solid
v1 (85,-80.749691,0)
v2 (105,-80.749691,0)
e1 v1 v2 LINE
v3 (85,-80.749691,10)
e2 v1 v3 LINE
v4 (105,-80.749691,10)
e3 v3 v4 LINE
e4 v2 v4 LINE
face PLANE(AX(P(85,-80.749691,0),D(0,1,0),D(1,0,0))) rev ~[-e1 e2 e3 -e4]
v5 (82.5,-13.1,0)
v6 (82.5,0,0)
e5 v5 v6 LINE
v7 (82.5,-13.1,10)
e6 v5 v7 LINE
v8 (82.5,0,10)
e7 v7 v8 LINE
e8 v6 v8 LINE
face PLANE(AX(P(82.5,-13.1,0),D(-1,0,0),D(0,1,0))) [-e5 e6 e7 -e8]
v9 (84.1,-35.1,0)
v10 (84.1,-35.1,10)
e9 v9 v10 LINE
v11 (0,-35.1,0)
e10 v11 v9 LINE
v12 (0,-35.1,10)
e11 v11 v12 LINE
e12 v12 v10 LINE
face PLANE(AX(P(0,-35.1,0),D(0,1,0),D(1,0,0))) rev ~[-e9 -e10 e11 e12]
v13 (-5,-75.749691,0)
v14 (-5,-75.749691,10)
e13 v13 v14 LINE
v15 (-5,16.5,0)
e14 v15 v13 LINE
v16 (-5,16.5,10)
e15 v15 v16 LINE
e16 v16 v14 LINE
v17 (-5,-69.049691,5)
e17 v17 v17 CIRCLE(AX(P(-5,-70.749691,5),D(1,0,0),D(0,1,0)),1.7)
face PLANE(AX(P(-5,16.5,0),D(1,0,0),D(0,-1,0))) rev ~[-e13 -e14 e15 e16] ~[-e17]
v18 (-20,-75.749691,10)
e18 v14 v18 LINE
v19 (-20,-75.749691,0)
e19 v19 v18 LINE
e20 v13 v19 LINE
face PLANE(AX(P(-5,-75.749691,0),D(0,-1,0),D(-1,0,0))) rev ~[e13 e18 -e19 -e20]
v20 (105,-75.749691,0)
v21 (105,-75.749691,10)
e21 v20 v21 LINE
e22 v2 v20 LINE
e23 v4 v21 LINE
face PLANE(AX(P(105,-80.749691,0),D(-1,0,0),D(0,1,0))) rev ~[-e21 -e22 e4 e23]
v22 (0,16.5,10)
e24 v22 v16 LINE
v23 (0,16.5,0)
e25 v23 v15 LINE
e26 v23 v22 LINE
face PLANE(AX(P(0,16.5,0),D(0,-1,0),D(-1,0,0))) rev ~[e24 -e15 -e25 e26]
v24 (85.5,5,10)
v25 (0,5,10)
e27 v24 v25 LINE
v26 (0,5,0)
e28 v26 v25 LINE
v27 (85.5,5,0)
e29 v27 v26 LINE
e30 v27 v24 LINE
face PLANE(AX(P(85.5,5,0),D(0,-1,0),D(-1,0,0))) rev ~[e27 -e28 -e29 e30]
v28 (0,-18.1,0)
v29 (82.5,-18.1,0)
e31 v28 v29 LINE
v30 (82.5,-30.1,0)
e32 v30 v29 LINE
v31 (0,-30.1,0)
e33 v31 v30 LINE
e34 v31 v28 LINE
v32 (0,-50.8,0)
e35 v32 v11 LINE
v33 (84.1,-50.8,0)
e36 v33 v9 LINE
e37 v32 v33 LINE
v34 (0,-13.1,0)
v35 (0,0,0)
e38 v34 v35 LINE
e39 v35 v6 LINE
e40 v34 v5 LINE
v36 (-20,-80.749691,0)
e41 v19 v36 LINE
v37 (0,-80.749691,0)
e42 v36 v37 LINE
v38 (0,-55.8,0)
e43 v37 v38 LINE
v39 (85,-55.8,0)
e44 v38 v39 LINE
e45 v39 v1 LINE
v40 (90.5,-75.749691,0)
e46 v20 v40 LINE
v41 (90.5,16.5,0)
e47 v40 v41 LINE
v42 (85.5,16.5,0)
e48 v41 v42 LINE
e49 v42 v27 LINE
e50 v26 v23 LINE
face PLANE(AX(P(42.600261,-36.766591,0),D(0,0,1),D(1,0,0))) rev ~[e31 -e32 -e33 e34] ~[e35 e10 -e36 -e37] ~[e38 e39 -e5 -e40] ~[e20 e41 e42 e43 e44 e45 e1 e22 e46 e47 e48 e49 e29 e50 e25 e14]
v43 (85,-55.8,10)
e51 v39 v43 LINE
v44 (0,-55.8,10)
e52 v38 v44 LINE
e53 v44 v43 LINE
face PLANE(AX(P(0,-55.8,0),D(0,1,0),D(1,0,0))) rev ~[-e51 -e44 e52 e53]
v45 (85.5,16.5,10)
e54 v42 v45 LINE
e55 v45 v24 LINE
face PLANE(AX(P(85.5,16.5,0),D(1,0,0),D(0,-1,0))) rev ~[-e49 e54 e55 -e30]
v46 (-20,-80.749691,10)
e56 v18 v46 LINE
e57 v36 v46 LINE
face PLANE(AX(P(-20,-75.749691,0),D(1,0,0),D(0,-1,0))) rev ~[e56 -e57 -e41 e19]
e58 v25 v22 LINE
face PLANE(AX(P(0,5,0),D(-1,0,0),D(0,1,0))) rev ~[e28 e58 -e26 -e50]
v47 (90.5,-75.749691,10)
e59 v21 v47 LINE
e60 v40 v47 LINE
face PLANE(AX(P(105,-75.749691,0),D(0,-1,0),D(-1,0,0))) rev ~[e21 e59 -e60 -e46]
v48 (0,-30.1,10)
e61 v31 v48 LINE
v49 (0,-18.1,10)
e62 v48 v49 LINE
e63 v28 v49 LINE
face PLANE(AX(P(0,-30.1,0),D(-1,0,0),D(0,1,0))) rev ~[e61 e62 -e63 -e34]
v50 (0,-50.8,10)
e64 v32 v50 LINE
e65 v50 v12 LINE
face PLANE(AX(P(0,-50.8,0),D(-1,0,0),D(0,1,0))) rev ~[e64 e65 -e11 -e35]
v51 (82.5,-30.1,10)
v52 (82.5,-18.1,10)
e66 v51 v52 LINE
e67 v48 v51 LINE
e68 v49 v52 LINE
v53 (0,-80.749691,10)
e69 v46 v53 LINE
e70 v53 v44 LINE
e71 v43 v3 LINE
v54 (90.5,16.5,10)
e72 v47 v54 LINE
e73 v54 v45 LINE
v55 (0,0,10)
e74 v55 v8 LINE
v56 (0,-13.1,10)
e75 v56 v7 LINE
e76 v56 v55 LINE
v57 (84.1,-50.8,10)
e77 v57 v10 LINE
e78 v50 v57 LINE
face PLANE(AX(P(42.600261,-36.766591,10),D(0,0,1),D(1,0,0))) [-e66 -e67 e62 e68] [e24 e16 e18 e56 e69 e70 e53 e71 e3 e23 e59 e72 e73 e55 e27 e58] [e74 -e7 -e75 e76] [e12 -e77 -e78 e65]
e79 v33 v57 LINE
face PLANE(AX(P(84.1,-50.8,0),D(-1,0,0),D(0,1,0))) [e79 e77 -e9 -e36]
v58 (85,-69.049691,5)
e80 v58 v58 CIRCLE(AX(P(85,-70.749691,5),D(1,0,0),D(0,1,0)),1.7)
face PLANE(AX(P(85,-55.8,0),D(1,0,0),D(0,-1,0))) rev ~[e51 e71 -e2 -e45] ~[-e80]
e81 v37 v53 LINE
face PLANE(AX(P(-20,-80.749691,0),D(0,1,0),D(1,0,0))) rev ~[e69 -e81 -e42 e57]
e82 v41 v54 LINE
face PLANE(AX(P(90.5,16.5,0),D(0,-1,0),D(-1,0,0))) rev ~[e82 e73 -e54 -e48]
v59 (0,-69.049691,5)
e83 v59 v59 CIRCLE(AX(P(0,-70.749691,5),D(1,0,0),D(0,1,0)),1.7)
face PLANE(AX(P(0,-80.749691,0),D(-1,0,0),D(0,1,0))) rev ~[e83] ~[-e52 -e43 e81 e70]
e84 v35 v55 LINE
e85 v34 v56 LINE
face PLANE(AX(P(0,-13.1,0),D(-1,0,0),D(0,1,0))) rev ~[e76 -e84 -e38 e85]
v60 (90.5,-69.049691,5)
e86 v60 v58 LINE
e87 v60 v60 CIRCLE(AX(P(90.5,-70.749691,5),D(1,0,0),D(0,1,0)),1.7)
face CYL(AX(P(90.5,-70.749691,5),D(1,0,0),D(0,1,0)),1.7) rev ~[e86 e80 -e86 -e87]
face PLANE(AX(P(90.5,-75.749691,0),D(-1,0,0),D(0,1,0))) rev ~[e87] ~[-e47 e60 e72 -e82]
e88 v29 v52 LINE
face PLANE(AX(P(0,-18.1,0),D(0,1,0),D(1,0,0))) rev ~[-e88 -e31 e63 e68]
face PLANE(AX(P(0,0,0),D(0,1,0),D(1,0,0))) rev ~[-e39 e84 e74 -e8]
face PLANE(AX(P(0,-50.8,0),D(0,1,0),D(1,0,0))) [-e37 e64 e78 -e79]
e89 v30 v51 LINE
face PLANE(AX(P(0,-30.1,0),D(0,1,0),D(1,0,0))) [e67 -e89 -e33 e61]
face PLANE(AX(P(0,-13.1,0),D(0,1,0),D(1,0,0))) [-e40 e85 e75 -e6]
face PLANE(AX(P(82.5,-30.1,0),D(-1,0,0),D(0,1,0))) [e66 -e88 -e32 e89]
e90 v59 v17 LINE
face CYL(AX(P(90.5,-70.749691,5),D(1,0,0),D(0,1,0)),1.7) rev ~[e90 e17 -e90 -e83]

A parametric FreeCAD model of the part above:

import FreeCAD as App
import Part
import Sketcher


def add_polygon(sketch, points):
    """Adds a closed chain of lines whose ends are joined by coincident constraints."""
    first, n = sketch.GeometryCount, len(points)
    for a, b in zip(points, points[1:] + points[:1]):
        sketch.addGeometry(Part.LineSegment(App.Vector(*a, 0), App.Vector(*b, 0)), False)
    for i in range(n):
        sketch.addConstraint(Sketcher.Constraint("Coincident", first + i, 2, first + (i + 1) % n, 1))

doc = App.newDocument("Part")
params = doc.addObject("Spreadsheet::Sheet", "Params")
for row, (alias, value) in enumerate([
    ("sketch1_width", "5 mm"),
    ("sketch1_width2", "15 mm"),
    ("sketch1_width3", "85 mm"),
    ("sketch1_height", "12 mm"),
    ("sketch1_width4", "85.5 mm"),
    ("pad1_length", "10 mm"),
    ("sketch2_diameter", "3.4 mm"),
], start=1):
    params.set(f"A{row}", alias)
    params.set(f"B{row}", "=" + value)
    params.setAlias(f"B{row}", alias)

body = doc.addObject("PartDesign::Body", "Body")

# Sketch on XY plane
sketch1 = body.newObject("Sketcher::SketchObject", "Sketch")
sketch1.AttachmentSupport = (doc.getObject("XY_Plane"), [""])
sketch1.MapMode = "FlatFace"
add_polygon(sketch1, [(86, 5), (0, 5), (0, 16), (-5, 16), (-5, -76), (-20, -76), (-20, -81), (0, -81), (0, -56), (85, -56), (85, -81), (105, -81), (105, -76), (90, -76), (90, 16), (86, 16)])  # lines 0-15
add_polygon(sketch1, [(84, -51), (0, -51), (0, -35), (84, -35)])  # lines 16-19
add_polygon(sketch1, [(82, -30), (0, -30), (0, -18), (82, -18)])  # lines 20-23
add_polygon(sketch1, [(82, -13), (0, -13), (0, 0), (82, 0)])  # lines 24-27
sketch1.addConstraint([
    Sketcher.Constraint("Horizontal", 0),
    Sketcher.Constraint("Vertical", 1),
    Sketcher.Constraint("Horizontal", 2),
    Sketcher.Constraint("Vertical", 3),
    Sketcher.Constraint("Horizontal", 4),
    Sketcher.Constraint("Vertical", 5),
    Sketcher.Constraint("Horizontal", 6),
    Sketcher.Constraint("Vertical", 7),
    Sketcher.Constraint("Horizontal", 8),
    Sketcher.Constraint("Vertical", 9),
    Sketcher.Constraint("Horizontal", 10),
    Sketcher.Constraint("Vertical", 11),
    Sketcher.Constraint("Horizontal", 12),
    Sketcher.Constraint("Vertical", 13),
    Sketcher.Constraint("Horizontal", 14),
    Sketcher.Constraint("Vertical", 15),
    Sketcher.Constraint("Horizontal", 16),
    Sketcher.Constraint("Vertical", 17),
    Sketcher.Constraint("Horizontal", 18),
    Sketcher.Constraint("Vertical", 19),
    Sketcher.Constraint("Horizontal", 20),
    Sketcher.Constraint("Vertical", 21),
    Sketcher.Constraint("Horizontal", 22),
    Sketcher.Constraint("Vertical", 23),
    Sketcher.Constraint("Horizontal", 24),
    Sketcher.Constraint("Vertical", 25),
    Sketcher.Constraint("Horizontal", 26),
    Sketcher.Constraint("Vertical", 27),
    Sketcher.Constraint("Coincident", 25, 2, -1, 1),
    Sketcher.Constraint("PointOnObject", 0, 2, -2),
    Sketcher.Constraint("PointOnObject", 6, 2, -2),
    Sketcher.Constraint("PointOnObject", 16, 2, -2),
    Sketcher.Constraint("PointOnObject", 20, 2, -2),
    Sketcher.Constraint("Horizontal", 6, 2, 9, 2),
    Sketcher.Constraint("Horizontal", 4, 2, 11, 2),
    Sketcher.Constraint("Horizontal", 2, 2, 13, 2),
    Sketcher.Constraint("Vertical", 23, 2, 26, 2),
    Sketcher.Constraint("Equal", 6, 10),
    Sketcher.Constraint("Equal", 2, 14),
    Sketcher.Constraint("Equal", 14, 5),
    Sketcher.Constraint("DistanceX", 2, 2, 2, 1, 5.0),
    Sketcher.Constraint("DistanceX", 4, 2, 4, 1, 15.0),
    Sketcher.Constraint("DistanceX", 8, 1, 8, 2, 85.0),
    Sketcher.Constraint("DistanceY", 21, 1, 21, 2, 12.0),
    Sketcher.Constraint("DistanceX", 0, 2, 0, 1, 85.5),
    Sketcher.Constraint("DistanceX", 16, 2, 16, 1, 84.1),
    Sketcher.Constraint("DistanceX", 20, 2, 20, 1, 82.5),
    Sketcher.Constraint("DistanceY", 1, 1, 1, 2, 11.5),
    Sketcher.Constraint("DistanceY", 17, 1, 17, 2, 15.7),
    Sketcher.Constraint("DistanceY", 25, 1, 25, 2, 13.1),
    Sketcher.Constraint("DistanceY", -1, 1, 0, 2, 5.0),
    Sketcher.Constraint("DistanceY", 7, 2, 16, 2, 5.0),
    Sketcher.Constraint("DistanceY", 17, 2, 20, 2, 5.0),
    Sketcher.Constraint("DistanceY", 21, 2, 24, 2, 5.0),
    Sketcher.Constraint("DistanceY", 3, 2, 3, 1, 92.249691),
])
sketch1.setExpression("Constraints[68]", "Params.sketch1_width")
sketch1.setExpression("Constraints[69]", "Params.sketch1_width2")
sketch1.setExpression("Constraints[70]", "Params.sketch1_width3")
sketch1.setExpression("Constraints[71]", "Params.sketch1_height")
sketch1.setExpression("Constraints[72]", "Params.sketch1_width4")
pad1 = body.newObject("PartDesign::Pad", "Pad")
pad1.Profile = sketch1
pad1.setExpression("Length", "Params.pad1_length")

# Sketch on YZ plane
sketch2 = body.newObject("Sketcher::SketchObject", "Sketch001")
sketch2.AttachmentSupport = (doc.getObject("YZ_Plane"), [""])
sketch2.MapMode = "FlatFace"
sketch2.AttachmentOffset = App.Placement(App.Vector(0, 0, 90.5), App.Rotation())
sketch2.addGeometry(Part.Circle(App.Vector(-70.7, 5, 0), App.Vector(0, 0, 1), 1.7), False)
sketch2.addConstraint([
    Sketcher.Constraint("Diameter", 0, 3.4),
    Sketcher.Constraint("DistanceY", -1, 1, 0, 3, 5.0),
    Sketcher.Constraint("DistanceX", 0, 3, -1, 1, 70.749691),
])
sketch2.setExpression("Constraints[0]", "Params.sketch2_diameter")
pocket1 = body.newObject("PartDesign::Pocket", "Pocket")
pocket1.Profile = sketch2
pocket1.Type = "ThroughAll"

doc.recompute()
